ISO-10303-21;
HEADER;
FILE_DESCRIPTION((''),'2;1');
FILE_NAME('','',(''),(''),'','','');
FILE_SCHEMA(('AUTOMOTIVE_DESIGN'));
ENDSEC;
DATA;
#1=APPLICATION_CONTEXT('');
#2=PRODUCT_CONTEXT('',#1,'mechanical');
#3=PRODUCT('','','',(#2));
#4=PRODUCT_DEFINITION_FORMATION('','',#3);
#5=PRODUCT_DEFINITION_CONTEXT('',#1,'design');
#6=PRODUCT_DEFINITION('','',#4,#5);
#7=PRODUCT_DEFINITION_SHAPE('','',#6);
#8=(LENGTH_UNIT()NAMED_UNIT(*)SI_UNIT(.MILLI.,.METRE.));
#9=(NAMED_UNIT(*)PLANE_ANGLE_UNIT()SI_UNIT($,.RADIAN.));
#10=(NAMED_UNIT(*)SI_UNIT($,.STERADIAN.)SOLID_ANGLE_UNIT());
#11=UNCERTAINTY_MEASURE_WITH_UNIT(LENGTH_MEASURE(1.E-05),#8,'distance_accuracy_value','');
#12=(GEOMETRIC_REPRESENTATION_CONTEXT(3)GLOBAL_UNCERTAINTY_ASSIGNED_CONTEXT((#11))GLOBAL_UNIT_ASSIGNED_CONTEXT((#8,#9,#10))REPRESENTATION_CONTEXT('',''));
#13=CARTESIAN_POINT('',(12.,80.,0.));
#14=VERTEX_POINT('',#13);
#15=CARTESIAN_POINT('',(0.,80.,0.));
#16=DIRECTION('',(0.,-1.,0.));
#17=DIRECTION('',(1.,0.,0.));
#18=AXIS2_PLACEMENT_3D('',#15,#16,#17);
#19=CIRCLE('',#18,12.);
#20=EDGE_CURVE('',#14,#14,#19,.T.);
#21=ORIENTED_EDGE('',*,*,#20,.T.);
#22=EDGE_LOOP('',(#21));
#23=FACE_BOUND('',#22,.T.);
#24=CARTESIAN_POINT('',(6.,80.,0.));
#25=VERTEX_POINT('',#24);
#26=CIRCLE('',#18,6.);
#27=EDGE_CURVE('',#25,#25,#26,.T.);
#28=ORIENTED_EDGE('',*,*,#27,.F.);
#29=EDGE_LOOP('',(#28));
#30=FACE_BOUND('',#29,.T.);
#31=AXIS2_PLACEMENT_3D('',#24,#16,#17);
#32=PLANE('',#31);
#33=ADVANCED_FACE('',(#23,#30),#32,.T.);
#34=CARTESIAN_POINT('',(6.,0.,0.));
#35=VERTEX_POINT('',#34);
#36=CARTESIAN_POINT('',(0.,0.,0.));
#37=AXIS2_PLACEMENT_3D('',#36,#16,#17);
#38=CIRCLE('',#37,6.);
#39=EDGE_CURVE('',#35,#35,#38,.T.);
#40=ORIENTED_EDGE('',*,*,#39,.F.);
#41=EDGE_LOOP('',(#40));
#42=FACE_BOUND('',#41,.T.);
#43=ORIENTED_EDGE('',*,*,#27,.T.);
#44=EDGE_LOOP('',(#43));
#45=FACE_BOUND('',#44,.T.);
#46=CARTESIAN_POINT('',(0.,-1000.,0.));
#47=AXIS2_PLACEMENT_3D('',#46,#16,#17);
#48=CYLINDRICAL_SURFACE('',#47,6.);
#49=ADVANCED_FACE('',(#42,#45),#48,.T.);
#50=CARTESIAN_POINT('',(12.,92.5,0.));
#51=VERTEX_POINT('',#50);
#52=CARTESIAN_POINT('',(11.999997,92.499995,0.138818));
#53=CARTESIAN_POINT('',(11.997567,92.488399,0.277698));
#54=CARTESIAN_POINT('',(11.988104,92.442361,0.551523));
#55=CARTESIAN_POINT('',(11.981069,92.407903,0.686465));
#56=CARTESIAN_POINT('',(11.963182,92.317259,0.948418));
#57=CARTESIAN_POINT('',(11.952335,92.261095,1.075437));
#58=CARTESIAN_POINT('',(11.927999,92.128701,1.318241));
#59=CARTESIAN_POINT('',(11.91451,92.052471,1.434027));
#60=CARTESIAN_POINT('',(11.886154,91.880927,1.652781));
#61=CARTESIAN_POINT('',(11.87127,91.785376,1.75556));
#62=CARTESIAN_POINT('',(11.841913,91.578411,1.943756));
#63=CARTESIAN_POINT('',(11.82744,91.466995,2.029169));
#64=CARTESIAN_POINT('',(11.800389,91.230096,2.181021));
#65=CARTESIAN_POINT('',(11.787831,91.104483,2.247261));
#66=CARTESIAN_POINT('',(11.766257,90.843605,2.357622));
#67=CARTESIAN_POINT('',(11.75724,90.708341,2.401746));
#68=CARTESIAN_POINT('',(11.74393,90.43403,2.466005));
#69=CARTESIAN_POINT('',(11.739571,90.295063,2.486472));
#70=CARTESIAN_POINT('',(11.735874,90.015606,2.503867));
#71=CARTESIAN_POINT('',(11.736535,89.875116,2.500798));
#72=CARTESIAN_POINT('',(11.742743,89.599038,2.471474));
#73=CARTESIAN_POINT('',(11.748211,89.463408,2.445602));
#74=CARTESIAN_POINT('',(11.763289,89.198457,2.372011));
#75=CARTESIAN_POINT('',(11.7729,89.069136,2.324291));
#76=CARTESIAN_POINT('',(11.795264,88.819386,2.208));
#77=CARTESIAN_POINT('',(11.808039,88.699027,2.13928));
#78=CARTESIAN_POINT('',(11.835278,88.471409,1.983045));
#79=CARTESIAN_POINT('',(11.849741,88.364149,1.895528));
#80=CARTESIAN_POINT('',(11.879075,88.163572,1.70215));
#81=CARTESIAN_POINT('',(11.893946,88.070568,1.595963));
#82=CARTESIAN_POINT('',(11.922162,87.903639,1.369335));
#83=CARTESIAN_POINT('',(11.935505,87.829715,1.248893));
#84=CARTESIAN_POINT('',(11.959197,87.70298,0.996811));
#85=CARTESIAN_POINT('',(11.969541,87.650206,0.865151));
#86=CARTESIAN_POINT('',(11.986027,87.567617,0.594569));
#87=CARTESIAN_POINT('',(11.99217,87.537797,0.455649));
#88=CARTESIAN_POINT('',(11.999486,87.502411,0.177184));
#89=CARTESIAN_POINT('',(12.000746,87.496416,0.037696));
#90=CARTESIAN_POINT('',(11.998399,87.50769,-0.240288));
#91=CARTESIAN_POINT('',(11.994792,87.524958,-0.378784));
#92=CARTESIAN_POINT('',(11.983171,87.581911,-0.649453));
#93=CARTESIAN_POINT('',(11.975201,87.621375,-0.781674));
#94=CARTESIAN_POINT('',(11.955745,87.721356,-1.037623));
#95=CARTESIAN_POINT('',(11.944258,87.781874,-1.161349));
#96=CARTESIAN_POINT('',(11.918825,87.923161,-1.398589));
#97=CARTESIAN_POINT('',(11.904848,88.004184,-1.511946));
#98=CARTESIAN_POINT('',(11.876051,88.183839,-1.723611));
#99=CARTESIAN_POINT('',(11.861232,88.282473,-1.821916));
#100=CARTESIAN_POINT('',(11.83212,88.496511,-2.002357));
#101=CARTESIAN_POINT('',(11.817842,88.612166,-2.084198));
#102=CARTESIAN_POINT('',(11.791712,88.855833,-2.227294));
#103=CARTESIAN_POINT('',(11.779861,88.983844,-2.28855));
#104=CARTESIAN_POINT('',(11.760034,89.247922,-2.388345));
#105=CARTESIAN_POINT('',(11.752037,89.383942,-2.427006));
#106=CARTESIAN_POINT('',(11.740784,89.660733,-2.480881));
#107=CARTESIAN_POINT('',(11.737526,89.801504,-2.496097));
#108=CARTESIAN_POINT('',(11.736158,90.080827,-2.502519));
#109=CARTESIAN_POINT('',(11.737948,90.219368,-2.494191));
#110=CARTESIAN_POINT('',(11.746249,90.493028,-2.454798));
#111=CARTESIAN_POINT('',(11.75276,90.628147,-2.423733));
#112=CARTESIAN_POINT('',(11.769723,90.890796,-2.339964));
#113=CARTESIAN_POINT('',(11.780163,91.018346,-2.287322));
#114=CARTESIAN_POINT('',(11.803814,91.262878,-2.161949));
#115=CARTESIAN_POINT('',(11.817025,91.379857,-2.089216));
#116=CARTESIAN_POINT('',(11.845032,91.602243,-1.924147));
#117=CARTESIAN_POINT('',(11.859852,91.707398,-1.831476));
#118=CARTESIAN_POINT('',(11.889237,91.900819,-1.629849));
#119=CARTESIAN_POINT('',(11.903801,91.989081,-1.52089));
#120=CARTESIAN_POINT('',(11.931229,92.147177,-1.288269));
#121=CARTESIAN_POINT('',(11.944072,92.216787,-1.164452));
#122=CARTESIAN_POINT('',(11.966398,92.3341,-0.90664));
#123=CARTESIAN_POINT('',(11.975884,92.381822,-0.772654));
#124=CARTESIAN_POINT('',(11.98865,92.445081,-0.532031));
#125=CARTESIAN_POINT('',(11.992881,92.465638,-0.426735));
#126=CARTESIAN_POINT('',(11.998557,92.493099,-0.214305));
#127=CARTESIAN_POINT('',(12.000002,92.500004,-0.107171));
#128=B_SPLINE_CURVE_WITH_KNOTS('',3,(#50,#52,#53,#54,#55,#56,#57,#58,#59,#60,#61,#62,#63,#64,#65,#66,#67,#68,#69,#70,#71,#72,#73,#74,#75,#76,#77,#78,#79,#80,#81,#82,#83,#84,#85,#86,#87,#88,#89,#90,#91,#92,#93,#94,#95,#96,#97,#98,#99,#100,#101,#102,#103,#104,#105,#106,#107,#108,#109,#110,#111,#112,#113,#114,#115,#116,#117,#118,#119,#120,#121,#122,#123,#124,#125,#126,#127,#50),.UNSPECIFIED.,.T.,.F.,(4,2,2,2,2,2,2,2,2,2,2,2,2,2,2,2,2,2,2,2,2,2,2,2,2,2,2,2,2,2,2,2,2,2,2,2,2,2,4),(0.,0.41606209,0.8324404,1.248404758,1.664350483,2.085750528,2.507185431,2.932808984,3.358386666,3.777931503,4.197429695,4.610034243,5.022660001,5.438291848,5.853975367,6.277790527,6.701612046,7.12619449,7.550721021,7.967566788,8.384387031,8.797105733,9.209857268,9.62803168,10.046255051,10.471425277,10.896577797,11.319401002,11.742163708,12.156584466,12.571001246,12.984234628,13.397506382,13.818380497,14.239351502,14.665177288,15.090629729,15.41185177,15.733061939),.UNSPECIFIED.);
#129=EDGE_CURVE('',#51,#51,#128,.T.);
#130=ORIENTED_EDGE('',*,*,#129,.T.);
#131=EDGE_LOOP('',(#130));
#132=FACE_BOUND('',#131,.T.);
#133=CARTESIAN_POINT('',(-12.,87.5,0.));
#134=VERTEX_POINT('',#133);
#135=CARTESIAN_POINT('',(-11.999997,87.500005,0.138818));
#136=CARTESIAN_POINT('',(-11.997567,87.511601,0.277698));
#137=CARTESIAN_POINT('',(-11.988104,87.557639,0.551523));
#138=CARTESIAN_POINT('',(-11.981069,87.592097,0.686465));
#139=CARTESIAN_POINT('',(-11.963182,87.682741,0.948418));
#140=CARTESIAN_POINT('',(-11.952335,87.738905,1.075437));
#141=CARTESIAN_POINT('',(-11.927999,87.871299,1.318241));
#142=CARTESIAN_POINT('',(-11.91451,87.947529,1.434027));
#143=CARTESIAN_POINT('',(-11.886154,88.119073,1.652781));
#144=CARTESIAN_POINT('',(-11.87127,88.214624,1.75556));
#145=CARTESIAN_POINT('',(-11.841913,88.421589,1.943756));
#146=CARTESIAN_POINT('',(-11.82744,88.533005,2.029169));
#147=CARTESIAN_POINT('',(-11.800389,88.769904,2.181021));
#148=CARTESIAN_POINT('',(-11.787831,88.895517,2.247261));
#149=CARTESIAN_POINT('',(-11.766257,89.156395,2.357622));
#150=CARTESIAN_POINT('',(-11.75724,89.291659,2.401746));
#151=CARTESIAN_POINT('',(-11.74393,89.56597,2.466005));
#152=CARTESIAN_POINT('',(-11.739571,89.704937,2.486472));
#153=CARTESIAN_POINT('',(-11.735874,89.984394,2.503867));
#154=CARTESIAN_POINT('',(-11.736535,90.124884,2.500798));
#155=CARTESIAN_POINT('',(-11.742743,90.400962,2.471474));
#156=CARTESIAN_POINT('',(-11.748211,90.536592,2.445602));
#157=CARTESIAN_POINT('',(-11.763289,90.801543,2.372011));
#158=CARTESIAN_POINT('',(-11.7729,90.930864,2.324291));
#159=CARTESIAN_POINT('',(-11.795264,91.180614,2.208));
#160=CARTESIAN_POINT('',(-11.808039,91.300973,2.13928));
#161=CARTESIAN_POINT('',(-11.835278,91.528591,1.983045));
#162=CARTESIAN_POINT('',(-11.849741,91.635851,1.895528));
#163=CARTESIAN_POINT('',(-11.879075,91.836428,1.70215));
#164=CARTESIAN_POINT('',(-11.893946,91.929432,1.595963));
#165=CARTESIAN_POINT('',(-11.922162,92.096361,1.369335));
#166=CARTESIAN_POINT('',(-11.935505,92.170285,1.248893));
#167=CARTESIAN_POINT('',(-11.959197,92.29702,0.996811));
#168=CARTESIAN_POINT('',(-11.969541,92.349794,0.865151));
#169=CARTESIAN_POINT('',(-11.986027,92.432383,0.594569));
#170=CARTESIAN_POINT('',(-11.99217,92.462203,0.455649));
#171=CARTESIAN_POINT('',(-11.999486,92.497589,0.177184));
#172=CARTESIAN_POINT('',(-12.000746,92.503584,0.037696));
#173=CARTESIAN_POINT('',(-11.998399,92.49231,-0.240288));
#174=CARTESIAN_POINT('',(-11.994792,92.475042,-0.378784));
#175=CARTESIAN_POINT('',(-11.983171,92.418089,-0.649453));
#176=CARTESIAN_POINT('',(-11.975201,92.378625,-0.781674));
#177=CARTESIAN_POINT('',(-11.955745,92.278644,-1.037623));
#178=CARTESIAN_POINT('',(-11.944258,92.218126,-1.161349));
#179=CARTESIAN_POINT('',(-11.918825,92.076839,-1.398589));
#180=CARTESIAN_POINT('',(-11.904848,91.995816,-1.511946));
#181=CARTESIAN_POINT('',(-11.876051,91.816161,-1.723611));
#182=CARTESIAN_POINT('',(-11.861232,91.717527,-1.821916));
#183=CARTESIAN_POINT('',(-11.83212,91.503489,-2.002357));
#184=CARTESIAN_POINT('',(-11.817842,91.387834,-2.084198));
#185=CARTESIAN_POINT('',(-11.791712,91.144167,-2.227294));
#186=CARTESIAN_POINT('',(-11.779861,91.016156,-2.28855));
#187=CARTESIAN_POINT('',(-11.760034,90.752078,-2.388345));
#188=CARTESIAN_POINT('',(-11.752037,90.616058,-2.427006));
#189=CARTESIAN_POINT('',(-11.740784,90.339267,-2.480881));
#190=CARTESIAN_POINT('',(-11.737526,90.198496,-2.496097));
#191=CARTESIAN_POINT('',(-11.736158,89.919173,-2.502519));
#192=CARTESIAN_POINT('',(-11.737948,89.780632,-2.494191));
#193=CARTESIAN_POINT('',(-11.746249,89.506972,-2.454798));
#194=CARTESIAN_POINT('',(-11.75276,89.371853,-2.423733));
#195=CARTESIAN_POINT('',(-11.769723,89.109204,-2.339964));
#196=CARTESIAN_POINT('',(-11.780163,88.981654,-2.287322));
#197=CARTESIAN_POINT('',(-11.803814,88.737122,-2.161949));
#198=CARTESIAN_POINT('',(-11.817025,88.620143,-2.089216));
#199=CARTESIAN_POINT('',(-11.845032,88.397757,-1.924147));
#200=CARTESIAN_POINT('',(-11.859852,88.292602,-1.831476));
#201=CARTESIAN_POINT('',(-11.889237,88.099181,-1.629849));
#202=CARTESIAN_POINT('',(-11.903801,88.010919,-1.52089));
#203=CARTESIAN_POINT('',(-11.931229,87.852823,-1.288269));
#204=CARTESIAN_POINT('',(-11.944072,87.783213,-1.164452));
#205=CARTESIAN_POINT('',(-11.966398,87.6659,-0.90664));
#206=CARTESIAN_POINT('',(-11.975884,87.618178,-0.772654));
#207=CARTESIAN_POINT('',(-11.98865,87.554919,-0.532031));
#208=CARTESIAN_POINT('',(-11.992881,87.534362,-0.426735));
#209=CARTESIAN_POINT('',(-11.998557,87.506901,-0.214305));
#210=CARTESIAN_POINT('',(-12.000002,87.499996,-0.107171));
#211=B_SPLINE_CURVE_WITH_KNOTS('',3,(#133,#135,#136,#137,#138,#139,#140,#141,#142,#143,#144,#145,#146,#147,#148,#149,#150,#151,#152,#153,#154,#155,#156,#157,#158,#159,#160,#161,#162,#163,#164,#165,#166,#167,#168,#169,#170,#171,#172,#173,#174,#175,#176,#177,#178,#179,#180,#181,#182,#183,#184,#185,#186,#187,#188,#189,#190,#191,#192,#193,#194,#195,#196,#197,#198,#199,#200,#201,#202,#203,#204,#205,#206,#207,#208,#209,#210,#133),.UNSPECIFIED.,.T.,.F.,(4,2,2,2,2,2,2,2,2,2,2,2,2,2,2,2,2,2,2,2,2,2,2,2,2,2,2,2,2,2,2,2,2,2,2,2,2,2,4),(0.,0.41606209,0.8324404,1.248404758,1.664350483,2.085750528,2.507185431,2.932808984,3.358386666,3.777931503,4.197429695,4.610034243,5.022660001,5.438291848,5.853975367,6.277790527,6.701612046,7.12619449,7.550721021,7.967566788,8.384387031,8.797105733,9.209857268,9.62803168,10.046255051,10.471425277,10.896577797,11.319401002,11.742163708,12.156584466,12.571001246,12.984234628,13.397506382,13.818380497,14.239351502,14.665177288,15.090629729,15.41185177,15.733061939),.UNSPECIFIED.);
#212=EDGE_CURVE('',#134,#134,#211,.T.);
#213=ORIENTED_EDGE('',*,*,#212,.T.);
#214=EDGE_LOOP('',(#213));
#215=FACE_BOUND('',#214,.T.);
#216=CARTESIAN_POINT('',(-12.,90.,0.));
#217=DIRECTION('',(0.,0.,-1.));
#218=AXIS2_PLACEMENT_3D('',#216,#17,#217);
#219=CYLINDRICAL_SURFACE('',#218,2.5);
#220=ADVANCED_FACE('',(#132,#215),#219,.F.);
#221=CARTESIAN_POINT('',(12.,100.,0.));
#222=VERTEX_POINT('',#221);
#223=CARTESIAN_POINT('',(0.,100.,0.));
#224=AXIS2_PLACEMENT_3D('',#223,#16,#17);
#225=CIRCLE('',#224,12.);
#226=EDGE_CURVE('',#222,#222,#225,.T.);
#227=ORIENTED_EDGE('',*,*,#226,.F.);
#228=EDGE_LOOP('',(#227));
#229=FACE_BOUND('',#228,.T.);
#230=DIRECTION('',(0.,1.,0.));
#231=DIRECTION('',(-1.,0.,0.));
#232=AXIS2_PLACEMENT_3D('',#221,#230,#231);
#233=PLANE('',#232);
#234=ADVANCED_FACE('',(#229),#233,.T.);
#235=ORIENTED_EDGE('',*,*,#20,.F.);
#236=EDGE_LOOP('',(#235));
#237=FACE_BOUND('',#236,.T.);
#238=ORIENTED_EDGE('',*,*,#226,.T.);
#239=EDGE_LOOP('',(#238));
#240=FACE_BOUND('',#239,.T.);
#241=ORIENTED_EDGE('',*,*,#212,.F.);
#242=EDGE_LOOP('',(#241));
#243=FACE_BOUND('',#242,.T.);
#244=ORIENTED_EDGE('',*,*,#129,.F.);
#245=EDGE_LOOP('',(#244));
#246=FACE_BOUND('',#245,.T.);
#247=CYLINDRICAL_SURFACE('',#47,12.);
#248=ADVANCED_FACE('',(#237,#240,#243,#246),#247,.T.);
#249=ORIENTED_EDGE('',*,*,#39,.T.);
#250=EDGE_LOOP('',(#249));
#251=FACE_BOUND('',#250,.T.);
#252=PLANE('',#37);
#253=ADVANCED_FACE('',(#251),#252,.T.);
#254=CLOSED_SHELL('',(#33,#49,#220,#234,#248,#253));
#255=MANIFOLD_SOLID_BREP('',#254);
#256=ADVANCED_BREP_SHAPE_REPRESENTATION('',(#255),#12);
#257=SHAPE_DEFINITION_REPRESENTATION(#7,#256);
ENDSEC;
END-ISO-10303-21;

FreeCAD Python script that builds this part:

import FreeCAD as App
import Part
import Sketcher
from FreeCAD import Vector
Q = App.Units.Quantity

doc = App.newDocument("Part")
body = doc.addObject("PartDesign::Body", "Body")

sketch1 = body.newObject("Sketcher::SketchObject", "Sketch")
sketch1.AttachmentSupport = (doc.getObject("XY_Plane"), [""])
sketch1.MapMode = "FlatFace"
sketch1.addGeometry([
    Part.LineSegment(Vector(0, 0, 0), Vector(6, 0, 0)),
    Part.LineSegment(Vector(6, 0, 0), Vector(6, 80, 0)),
    Part.LineSegment(Vector(6, 80, 0), Vector(12, 80, 0)),
    Part.LineSegment(Vector(12, 80, 0), Vector(12, 100, 0)),
    Part.LineSegment(Vector(12, 100, 0), Vector(0, 100, 0)),
    Part.LineSegment(Vector(0, 100, 0), Vector(0, 0, 0)),
], False)
sketch1.addConstraint([
    Sketcher.Constraint("Coincident", 0, 2, 1, 1),
    Sketcher.Constraint("Coincident", 1, 2, 2, 1),
    Sketcher.Constraint("Coincident", 2, 2, 3, 1),
    Sketcher.Constraint("Coincident", 3, 2, 4, 1),
    Sketcher.Constraint("Coincident", 4, 2, 5, 1),
    Sketcher.Constraint("Coincident", 5, 2, 0, 1),
    Sketcher.Constraint("Horizontal", 0),
    Sketcher.Constraint("Vertical", 1),
    Sketcher.Constraint("Horizontal", 2),
    Sketcher.Constraint("Vertical", 3),
    Sketcher.Constraint("Horizontal", 4),
    Sketcher.Constraint("Vertical", 5),
    Sketcher.Constraint("Coincident", 5, 2, -1, 1),
    Sketcher.Constraint("Equal", 0, 2),
    Sketcher.Constraint("DistanceX", 0, 1, 0, 2, Q("6 mm")),
    Sketcher.Constraint("DistanceY", 1, 1, 1, 2, Q("80 mm")),
    Sketcher.Constraint("DistanceY", 3, 1, 3, 2, Q("20 mm")),
])
revolution = body.newObject("PartDesign::Revolution", "Revolution")
revolution.Profile = sketch1
revolution.ReferenceAxis = (sketch1, ["V_Axis"])
revolution.Angle = 360

sketch2 = body.newObject("Sketcher::SketchObject", "Sketch001")
sketch2.AttachmentSupport = (doc.getObject("YZ_Plane"), [""])
sketch2.MapMode = "FlatFace"
sketch2.AttachmentOffset = App.Placement(Vector(0, 0, 12), App.Rotation())
sketch2.addGeometry(Part.Circle(Vector(90, 0, 0), Vector(0, 0, 1), 2.5), False)
sketch2.addConstraint([
    Sketcher.Constraint("PointOnObject", 0, 3, -1),
    Sketcher.Constraint("Diameter", 0, Q("5 mm")),
    Sketcher.Constraint("DistanceX", -1, 1, 0, 3, Q("90 mm")),
])
pocket1 = body.newObject("PartDesign::Pocket", "Pocket")
pocket1.Profile = sketch2
pocket1.Type = "ThroughAll"

doc.recompute()
